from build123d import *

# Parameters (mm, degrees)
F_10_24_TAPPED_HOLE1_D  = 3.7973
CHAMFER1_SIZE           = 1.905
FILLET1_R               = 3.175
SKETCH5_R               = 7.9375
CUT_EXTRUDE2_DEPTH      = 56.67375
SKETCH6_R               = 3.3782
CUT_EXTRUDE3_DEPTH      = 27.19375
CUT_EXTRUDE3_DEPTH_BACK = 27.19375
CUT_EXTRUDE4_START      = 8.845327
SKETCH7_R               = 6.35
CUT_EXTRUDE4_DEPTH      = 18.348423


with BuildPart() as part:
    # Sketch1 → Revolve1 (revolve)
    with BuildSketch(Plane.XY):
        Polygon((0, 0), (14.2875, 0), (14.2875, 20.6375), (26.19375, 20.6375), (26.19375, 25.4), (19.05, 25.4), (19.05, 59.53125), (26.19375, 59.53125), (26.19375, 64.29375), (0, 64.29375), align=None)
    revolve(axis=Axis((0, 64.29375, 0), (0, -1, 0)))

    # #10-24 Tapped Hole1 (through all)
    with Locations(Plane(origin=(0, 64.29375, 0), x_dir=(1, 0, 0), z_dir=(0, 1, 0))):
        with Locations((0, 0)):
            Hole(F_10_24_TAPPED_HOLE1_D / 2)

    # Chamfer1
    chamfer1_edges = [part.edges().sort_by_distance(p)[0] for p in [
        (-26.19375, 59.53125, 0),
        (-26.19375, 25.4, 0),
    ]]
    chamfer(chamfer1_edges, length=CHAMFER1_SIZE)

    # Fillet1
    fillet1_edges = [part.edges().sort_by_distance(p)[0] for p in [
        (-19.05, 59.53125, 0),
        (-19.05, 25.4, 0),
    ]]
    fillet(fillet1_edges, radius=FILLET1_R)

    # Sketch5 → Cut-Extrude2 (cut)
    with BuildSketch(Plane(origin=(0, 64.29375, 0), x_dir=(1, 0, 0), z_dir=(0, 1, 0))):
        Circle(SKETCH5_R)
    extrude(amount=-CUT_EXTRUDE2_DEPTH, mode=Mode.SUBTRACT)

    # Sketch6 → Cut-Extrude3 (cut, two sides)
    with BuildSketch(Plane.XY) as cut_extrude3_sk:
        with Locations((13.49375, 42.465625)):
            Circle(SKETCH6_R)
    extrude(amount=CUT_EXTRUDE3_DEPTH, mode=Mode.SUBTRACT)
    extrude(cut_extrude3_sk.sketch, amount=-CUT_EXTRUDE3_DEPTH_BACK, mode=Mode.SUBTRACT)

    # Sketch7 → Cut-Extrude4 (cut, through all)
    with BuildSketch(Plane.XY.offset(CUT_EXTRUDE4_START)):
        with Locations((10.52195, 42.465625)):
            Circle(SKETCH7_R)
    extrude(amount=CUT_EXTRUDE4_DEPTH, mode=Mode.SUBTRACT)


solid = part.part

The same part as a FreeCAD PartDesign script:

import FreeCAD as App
import Part
import Sketcher
from FreeCAD import Vector
Q = App.Units.Quantity


def edges_at(feature, points):
    """Names of the edges that pass closest to the given points."""
    edges = feature.Shape.Edges
    near = lambda p: min(range(len(edges)), key=lambda i: edges[i].distToShape(Part.Vertex(*p))[0])
    return sorted({f"Edge{near(p) + 1}" for p in points})


def add_polygon(sketch, points):
    """Adds a closed chain of lines whose ends are joined by coincident constraints."""
    first, n = sketch.GeometryCount, len(points)
    for a, b in zip(points, points[1:] + points[:1]):
        sketch.addGeometry(Part.LineSegment(App.Vector(*a, 0), App.Vector(*b, 0)), False)
    for i in range(n):
        sketch.addConstraint(Sketcher.Constraint("Coincident", first + i, 2, first + (i + 1) % n, 1))

doc = App.newDocument("Part")
body = doc.addObject("PartDesign::Body", "Body")

sketch1 = doc.addObject("Sketcher::SketchObject", "Sketch")
body.addObject(sketch1)
sketch1.AttachmentSupport = (doc.XY_Plane, [""])
sketch1.MapMode = "FlatFace"
add_polygon(sketch1, [(0, 0), (14.3, 0), (14.3, 20.6), (26.2, 20.6), (26.2, 25.4), (19.1, 25.4), (19.1, 59.5), (26.2, 59.5), (26.2, 64.3), (0, 64.3)])
sketch1.addConstraint(Sketcher.Constraint("Horizontal", 0))
sketch1.addConstraint(Sketcher.Constraint("Vertical", 1))
sketch1.addConstraint(Sketcher.Constraint("Horizontal", 2))
sketch1.addConstraint(Sketcher.Constraint("Vertical", 3))
sketch1.addConstraint(Sketcher.Constraint("Horizontal", 4))
sketch1.addConstraint(Sketcher.Constraint("Vertical", 5))
sketch1.addConstraint(Sketcher.Constraint("Horizontal", 6))
sketch1.addConstraint(Sketcher.Constraint("Vertical", 7))
sketch1.addConstraint(Sketcher.Constraint("Horizontal", 8))
sketch1.addConstraint(Sketcher.Constraint("Vertical", 9))
sketch1.addConstraint(Sketcher.Constraint("Coincident", 9, 2, -1, 1))
sketch1.addConstraint(Sketcher.Constraint("Vertical", 3, 2, 6, 2))
sketch1.addConstraint(Sketcher.Constraint("Equal", 3, 7))
sketch1.addConstraint(Sketcher.Constraint("DistanceY", -1, 1, 3, 2, Q("1 in")))
sketch1.addConstraint(Sketcher.Constraint("DistanceX", 0, 1, 0, 2, Q("0.5625 in")))
sketch1.addConstraint(Sketcher.Constraint("DistanceX", 2, 1, 2, 2, Q("0.46875 in")))
sketch1.addConstraint(Sketcher.Constraint("DistanceX", 4, 2, 4, 1, Q("0.28125 in")))
sketch1.addConstraint(Sketcher.Constraint("DistanceY", 1, 1, 1, 2, Q("0.8125 in")))
sketch1.addConstraint(Sketcher.Constraint("DistanceY", 5, 1, 5, 2, Q("1.34375 in")))
revolution = doc.addObject("PartDesign::Revolution", "Revolution")
body.addObject(revolution)
revolution.Profile = sketch1
revolution.ReferenceAxis = (sketch1, ["V_Axis"])
revolution.Angle = 360

sketch2 = doc.addObject("Sketcher::SketchObject", "Sketch001")
body.addObject(sketch2)
sketch2.AttachmentSupport = (doc.XZ_Plane, [""])
sketch2.MapMode = "FlatFace"
sketch2.AttachmentOffset = App.Placement(Vector(0, 0, -2.53125 * 25.4), App.Rotation())
sketch2.addGeometry(Part.Circle(Vector(0, 0, 0), Vector(0, 0, 1), 1.9), False)
sketch2.addConstraint(Sketcher.Constraint("Coincident", 0, 3, -1, 1))
sketch2.addConstraint(Sketcher.Constraint("Diameter", 0, Q("0.1495 in")))
doc.recompute()
hole = doc.addObject("PartDesign::Hole", "Hole")
body.addObject(hole)
hole.Profile = sketch2
hole.ThreadType = "None"
hole.Diameter = Q("0.1495 in")
hole.DepthType = "ThroughAll"
hole.Reversed = True
doc.recompute()

chamfer = doc.addObject("PartDesign::Chamfer", "Chamfer")
body.addObject(chamfer)
chamfer.Base = (hole, edges_at(hole, [(-26.194, 59.531, 0), (-26.194, 25.4, 0)]))
chamfer.Size = Q("0.075 in")
doc.recompute()

fillet = doc.addObject("PartDesign::Fillet", "Fillet")
body.addObject(fillet)
fillet.Base = (chamfer, edges_at(chamfer, [(-19.05, 59.531, 0), (-19.05, 25.4, 0)]))
fillet.Radius = Q("0.125 in")

sketch3 = doc.addObject("Sketcher::SketchObject", "Sketch002")
body.addObject(sketch3)
sketch3.AttachmentSupport = (doc.XZ_Plane, [""])
sketch3.MapMode = "FlatFace"
sketch3.AttachmentOffset = App.Placement(Vector(0, 0, -2.53125 * 25.4), App.Rotation())
sketch3.addGeometry(Part.Circle(Vector(0, 0, 0), Vector(0, 0, 1), 8), False)
sketch3.addConstraint(Sketcher.Constraint("Coincident", 0, 3, -1, 1))
sketch3.addConstraint(Sketcher.Constraint("Diameter", 0, Q("0.625 in")))
pocket1 = doc.addObject("PartDesign::Pocket", "Pocket")
body.addObject(pocket1)
pocket1.Profile = sketch3
pocket1.Length = 56.67375
pocket1.Reversed = True

sketch4 = doc.addObject("Sketcher::SketchObject", "Sketch003")
body.addObject(sketch4)
sketch4.AttachmentSupport = (doc.XY_Plane, [""])
sketch4.MapMode = "FlatFace"
sketch4.addGeometry(Part.Circle(Vector(13.5, 42.5, 0), Vector(0, 0, 1), 3.4), False)
sketch4.addConstraint(Sketcher.Constraint("Diameter", 0, Q("0.266 in")))
sketch4.addConstraint(Sketcher.Constraint("DistanceX", -1, 1, 0, 3, Q("0.53125 in")))
sketch4.addConstraint(Sketcher.Constraint("DistanceY", -1, 1, 0, 3, Q("1.671875 in")))
pocket2 = doc.addObject("PartDesign::Pocket", "Pocket001")
body.addObject(pocket2)
pocket2.Profile = sketch4
pocket2.Type = "ThroughAll"
pocket2.Midplane = True

sketch5 = doc.addObject("Sketcher::SketchObject", "Sketch004")
body.addObject(sketch5)
sketch5.AttachmentSupport = (doc.XY_Plane, [""])
sketch5.MapMode = "FlatFace"
sketch5.AttachmentOffset = App.Placement(Vector(0, 0, 8.845327), App.Rotation())
sketch5.addGeometry(Part.Circle(Vector(11, 42, 0), Vector(0, 0, 1), 6), False)
sketch5.addConstraint(Sketcher.Constraint("Diameter", 0, Q("0.5 in")))
sketch5.addConstraint(Sketcher.Constraint("DistanceY", -1, 1, 0, 3, Q("1.671875 in")))
sketch5.addConstraint(Sketcher.Constraint("DistanceX", -1, 1, 0, 3, 10.52195))
pocket3 = doc.addObject("PartDesign::Pocket", "Pocket002")
body.addObject(pocket3)
pocket3.Profile = sketch5
pocket3.Type = "ThroughAll"
pocket3.Reversed = True

doc.recompute()
